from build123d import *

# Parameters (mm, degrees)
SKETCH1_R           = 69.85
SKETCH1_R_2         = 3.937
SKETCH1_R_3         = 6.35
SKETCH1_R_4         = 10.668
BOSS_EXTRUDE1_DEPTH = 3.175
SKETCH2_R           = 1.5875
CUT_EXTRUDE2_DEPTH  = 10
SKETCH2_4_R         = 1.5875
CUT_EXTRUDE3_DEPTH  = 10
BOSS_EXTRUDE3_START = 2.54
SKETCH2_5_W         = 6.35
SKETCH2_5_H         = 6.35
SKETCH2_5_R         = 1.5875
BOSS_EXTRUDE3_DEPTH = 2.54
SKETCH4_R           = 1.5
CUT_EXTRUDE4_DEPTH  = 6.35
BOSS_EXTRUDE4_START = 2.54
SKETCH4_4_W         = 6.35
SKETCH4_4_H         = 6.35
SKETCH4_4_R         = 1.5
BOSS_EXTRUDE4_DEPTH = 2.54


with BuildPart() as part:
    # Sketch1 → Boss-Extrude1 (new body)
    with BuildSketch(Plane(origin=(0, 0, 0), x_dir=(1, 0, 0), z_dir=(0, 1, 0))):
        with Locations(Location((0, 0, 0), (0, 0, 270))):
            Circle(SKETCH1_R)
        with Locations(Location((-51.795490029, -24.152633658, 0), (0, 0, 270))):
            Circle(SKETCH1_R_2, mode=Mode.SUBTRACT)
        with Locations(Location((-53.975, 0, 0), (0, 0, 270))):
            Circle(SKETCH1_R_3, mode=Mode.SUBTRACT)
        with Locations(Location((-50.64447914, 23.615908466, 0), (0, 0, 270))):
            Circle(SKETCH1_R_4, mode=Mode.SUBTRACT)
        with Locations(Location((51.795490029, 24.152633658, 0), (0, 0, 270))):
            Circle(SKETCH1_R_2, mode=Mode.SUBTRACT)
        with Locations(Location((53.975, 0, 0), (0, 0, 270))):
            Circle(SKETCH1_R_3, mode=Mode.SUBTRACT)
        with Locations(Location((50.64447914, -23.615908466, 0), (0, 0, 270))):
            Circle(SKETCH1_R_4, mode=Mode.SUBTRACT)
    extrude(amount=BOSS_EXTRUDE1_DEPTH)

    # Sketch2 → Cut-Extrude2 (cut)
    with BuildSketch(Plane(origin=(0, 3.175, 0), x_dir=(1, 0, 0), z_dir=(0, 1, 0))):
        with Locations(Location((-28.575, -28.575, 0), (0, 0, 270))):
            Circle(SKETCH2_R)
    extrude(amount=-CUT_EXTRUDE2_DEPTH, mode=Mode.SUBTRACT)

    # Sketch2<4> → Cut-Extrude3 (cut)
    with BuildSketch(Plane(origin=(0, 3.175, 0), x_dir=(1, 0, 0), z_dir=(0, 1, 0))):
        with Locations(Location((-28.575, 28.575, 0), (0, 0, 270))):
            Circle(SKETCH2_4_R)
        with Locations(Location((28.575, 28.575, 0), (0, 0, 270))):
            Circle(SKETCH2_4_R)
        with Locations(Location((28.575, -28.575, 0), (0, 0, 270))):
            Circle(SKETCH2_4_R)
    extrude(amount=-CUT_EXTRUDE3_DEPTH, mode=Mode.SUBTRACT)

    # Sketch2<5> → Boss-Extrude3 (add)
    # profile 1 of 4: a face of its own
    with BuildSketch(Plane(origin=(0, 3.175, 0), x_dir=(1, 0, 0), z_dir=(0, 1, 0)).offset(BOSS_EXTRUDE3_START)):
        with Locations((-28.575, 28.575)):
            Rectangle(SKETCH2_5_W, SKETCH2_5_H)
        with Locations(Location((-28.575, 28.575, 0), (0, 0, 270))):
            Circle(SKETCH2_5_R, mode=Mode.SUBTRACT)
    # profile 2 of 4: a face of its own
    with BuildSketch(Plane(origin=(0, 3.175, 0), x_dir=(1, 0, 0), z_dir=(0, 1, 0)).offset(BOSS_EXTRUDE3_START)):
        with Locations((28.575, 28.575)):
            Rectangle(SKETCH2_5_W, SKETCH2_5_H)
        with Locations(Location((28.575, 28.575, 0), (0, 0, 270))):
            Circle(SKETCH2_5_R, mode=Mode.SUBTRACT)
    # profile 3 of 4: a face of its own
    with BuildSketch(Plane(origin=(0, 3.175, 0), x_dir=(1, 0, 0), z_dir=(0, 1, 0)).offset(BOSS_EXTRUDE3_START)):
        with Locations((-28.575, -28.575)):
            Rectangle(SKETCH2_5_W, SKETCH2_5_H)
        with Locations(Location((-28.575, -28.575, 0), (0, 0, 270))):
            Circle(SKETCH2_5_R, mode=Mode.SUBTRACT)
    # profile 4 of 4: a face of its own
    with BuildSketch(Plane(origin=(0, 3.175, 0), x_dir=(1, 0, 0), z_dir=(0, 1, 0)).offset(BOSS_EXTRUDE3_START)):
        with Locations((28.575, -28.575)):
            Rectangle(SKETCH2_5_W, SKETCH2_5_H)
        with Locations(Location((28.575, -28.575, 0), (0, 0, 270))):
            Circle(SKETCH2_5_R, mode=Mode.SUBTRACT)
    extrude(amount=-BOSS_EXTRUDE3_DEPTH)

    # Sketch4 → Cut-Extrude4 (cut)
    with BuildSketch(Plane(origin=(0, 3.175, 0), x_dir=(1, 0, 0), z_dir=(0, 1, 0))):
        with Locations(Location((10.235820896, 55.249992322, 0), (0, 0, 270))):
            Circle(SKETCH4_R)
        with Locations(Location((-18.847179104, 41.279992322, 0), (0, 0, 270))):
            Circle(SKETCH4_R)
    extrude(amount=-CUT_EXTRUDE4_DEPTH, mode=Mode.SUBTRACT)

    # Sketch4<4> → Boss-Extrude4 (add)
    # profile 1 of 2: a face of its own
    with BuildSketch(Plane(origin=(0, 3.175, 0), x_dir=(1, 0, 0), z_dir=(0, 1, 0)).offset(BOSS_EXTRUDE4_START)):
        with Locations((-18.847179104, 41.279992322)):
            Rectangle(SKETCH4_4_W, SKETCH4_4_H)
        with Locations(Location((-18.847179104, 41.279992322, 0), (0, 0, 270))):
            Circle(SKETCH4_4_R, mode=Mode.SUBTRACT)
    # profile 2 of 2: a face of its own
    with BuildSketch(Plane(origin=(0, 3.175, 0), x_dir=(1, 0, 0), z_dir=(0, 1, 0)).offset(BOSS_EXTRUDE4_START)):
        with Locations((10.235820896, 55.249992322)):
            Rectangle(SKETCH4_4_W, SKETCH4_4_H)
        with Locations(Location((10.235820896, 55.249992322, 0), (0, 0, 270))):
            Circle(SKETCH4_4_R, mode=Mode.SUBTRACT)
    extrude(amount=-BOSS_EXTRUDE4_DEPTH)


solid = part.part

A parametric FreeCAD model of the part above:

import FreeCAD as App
import Part
import Sketcher
Q = App.Units.Quantity

doc = App.newDocument("Part")
body = doc.addObject("PartDesign::Body", "Body")

sketch1 = body.newObject("Sketcher::SketchObject", "Sketch")
sketch1.AttachmentSupport = (doc.getObject("XZ_Plane"), [""])
sketch1.MapMode = "FlatFace"
sketch1.addGeometry(Part.Circle(App.Vector(0, 0, 0), App.Vector(0, 0, 1), 69.8), False)
sketch1.addGeometry(Part.Circle(App.Vector(-50.6, -23.6, 0), App.Vector(0, 0, 1), 10.7), False)
sketch1.addGeometry(Part.Circle(App.Vector(-54, 0, 0), App.Vector(0, 0, 1), 6.3), False)
sketch1.addGeometry(Part.Circle(App.Vector(-51.8, 24.2, 0), App.Vector(0, 0, 1), 3.9), False)
sketch1.addGeometry(Part.Circle(App.Vector(51.8, -24.2, 0), App.Vector(0, 0, 1), 3.9), False)
sketch1.addGeometry(Part.Circle(App.Vector(54, 0, 0), App.Vector(0, 0, 1), 6.3), False)
sketch1.addGeometry(Part.Circle(App.Vector(50.6, 23.6, 0), App.Vector(0, 0, 1), 10.7), False)
sketch1.addConstraint(Sketcher.Constraint("Coincident", 0, 3, -1, 1))
sketch1.addConstraint(Sketcher.Constraint("Equal", 3, 4))
sketch1.addConstraint(Sketcher.Constraint("Equal", 2, 5))
sketch1.addConstraint(Sketcher.Constraint("Equal", 1, 6))
sketch1.addConstraint(Sketcher.Constraint("Symmetric", 3, 3, 4, 3, -1, 1))
sketch1.addConstraint(Sketcher.Constraint("Symmetric", 2, 3, 5, 3, -1, 1))
sketch1.addConstraint(Sketcher.Constraint("Symmetric", 1, 3, 6, 3, -1, 1))
sketch1.addConstraint(Sketcher.Constraint("PointOnObject", 2, 3, -1))
sketch1.addConstraint(Sketcher.Constraint("Diameter", 0, Q("5.5 in")))
sketch1.addConstraint(Sketcher.Constraint("Diameter", 2, Q("0.5 in")))
sketch1.addConstraint(Sketcher.Constraint("Diameter", 1, Q("0.84 in")))
sketch1.addConstraint(Sketcher.Constraint("Diameter", 3, Q("0.31 in")))
sketch1.addConstraint(Sketcher.Constraint("DistanceX", 2, 3, 5, 3, Q("4.25 in")))
sketch1.addConstraint(Sketcher.Constraint("DistanceX", 1, 3, -1, 1, 50.644479))
sketch1.addConstraint(Sketcher.Constraint("DistanceY", 1, 3, -1, 1, 23.615908))
sketch1.addConstraint(Sketcher.Constraint("DistanceX", 3, 3, -1, 1, 51.79549))
sketch1.addConstraint(Sketcher.Constraint("DistanceY", -1, 1, 3, 3, 24.152634))
pad1 = body.newObject("PartDesign::Pad", "Pad")
pad1.Profile = sketch1
pad1.Length = Q("0.125 in")
pad1.Reversed = True

sketch2 = body.newObject("Sketcher::SketchObject", "Sketch001")
sketch2.AttachmentSupport = (doc.getObject("XZ_Plane"), [""])
sketch2.MapMode = "FlatFace"
sketch2.AttachmentOffset = App.Placement(App.Vector(0, 0, -0.125 * 25.4), App.Rotation())
sketch2.addGeometry(Part.Circle(App.Vector(-28.6, 28.6, 0), App.Vector(0, 0, 1), 1.6), False)
sketch2.addConstraint(Sketcher.Constraint("Diameter", 0, Q("0.125 in")))
sketch2.addConstraint(Sketcher.Constraint("DistanceX", 0, 3, -1, 1, Q("1.125 in")))
sketch2.addConstraint(Sketcher.Constraint("DistanceY", -1, 1, 0, 3, Q("1.125 in")))
pocket1 = body.newObject("PartDesign::Pocket", "Pocket")
pocket1.Profile = sketch2
pocket1.Length = 10
pocket1.Reversed = True

sketch3 = body.newObject("Sketcher::SketchObject", "Sketch002")
sketch3.AttachmentSupport = (doc.getObject("XZ_Plane"), [""])
sketch3.MapMode = "FlatFace"
sketch3.AttachmentOffset = App.Placement(App.Vector(0, 0, -0.125 * 25.4), App.Rotation())
sketch3.addGeometry(Part.Circle(App.Vector(-28.6, -28.6, 0), App.Vector(0, 0, 1), 1.6), False)
sketch3.addGeometry(Part.Circle(App.Vector(28.6, -28.6, 0), App.Vector(0, 0, 1), 1.6), False)
sketch3.addGeometry(Part.Circle(App.Vector(28.6, 28.6, 0), App.Vector(0, 0, 1), 1.6), False)
sketch3.addConstraint(Sketcher.Constraint("Equal", 0, 1))
sketch3.addConstraint(Sketcher.Constraint("Equal", 1, 2))
sketch3.addConstraint(Sketcher.Constraint("Symmetric", 0, 3, 2, 3, -1, 1))
sketch3.addConstraint(Sketcher.Constraint("Symmetric", 0, 3, 1, 3, -2))
sketch3.addConstraint(Sketcher.Constraint("Diameter", 0, Q("0.125 in")))
sketch3.addConstraint(Sketcher.Constraint("DistanceX", 0, 3, 1, 3, Q("2.25 in")))
sketch3.addConstraint(Sketcher.Constraint("DistanceY", 1, 3, 2, 3, Q("2.25 in")))
pocket2 = body.newObject("PartDesign::Pocket", "Pocket001")
pocket2.Profile = sketch3
pocket2.Length = 10
pocket2.Reversed = True

sketch4 = body.newObject("Sketcher::SketchObject", "Sketch003")
sketch4.AttachmentSupport = (doc.getObject("XZ_Plane"), [""])
sketch4.MapMode = "FlatFace"
sketch4.AttachmentOffset = App.Placement(App.Vector(0, 0, -0.225 * 25.4), App.Rotation())
sketch4.addGeometry(Part.LineSegment(App.Vector(-31.8, -31.8, 0), App.Vector(-31.8, -25.4, 0)), False)
sketch4.addGeometry(Part.LineSegment(App.Vector(-31.8, -25.4, 0), App.Vector(-25.4, -25.4, 0)), False)
sketch4.addGeometry(Part.LineSegment(App.Vector(-25.4, -25.4, 0), App.Vector(-25.4, -31.8, 0)), False)
sketch4.addGeometry(Part.LineSegment(App.Vector(-25.4, -31.8, 0), App.Vector(-31.8, -31.8, 0)), False)
sketch4.addGeometry(Part.Circle(App.Vector(-28.6, -28.6, 0), App.Vector(0, 0, 1), 1.6), False)
sketch4.addGeometry(Part.LineSegment(App.Vector(25.4, -31.8, 0), App.Vector(25.4, -25.4, 0)), False)
sketch4.addGeometry(Part.LineSegment(App.Vector(25.4, -25.4, 0), App.Vector(31.8, -25.4, 0)), False)
sketch4.addGeometry(Part.LineSegment(App.Vector(31.8, -25.4, 0), App.Vector(31.8, -31.8, 0)), False)
sketch4.addGeometry(Part.LineSegment(App.Vector(31.8, -31.8, 0), App.Vector(25.4, -31.8, 0)), False)
sketch4.addGeometry(Part.Circle(App.Vector(28.6, -28.6, 0), App.Vector(0, 0, 1), 1.6), False)
sketch4.addGeometry(Part.LineSegment(App.Vector(-31.8, 25.4, 0), App.Vector(-31.8, 31.8, 0)), False)
sketch4.addGeometry(Part.LineSegment(App.Vector(-31.8, 31.8, 0), App.Vector(-25.4, 31.8, 0)), False)
sketch4.addGeometry(Part.LineSegment(App.Vector(-25.4, 31.8, 0), App.Vector(-25.4, 25.4, 0)), False)
sketch4.addGeometry(Part.LineSegment(App.Vector(-25.4, 25.4, 0), App.Vector(-31.8, 25.4, 0)), False)
sketch4.addGeometry(Part.Circle(App.Vector(-28.6, 28.6, 0), App.Vector(0, 0, 1), 1.6), False)
sketch4.addGeometry(Part.LineSegment(App.Vector(25.4, 25.4, 0), App.Vector(25.4, 31.8, 0)), False)
sketch4.addGeometry(Part.LineSegment(App.Vector(25.4, 31.8, 0), App.Vector(31.8, 31.8, 0)), False)
sketch4.addGeometry(Part.LineSegment(App.Vector(31.8, 31.8, 0), App.Vector(31.8, 25.4, 0)), False)
sketch4.addGeometry(Part.LineSegment(App.Vector(31.8, 25.4, 0), App.Vector(25.4, 25.4, 0)), False)
sketch4.addGeometry(Part.Circle(App.Vector(28.6, 28.6, 0), App.Vector(0, 0, 1), 1.6), False)
sketch4.addConstraint(Sketcher.Constraint("Coincident", 0, 2, 1, 1))
sketch4.addConstraint(Sketcher.Constraint("Coincident", 1, 2, 2, 1))
sketch4.addConstraint(Sketcher.Constraint("Coincident", 2, 2, 3, 1))
sketch4.addConstraint(Sketcher.Constraint("Coincident", 3, 2, 0, 1))
sketch4.addConstraint(Sketcher.Constraint("Coincident", 5, 2, 6, 1))
sketch4.addConstraint(Sketcher.Constraint("Coincident", 6, 2, 7, 1))
sketch4.addConstraint(Sketcher.Constraint("Coincident", 7, 2, 8, 1))
sketch4.addConstraint(Sketcher.Constraint("Coincident", 8, 2, 5, 1))
sketch4.addConstraint(Sketcher.Constraint("Coincident", 10, 2, 11, 1))
sketch4.addConstraint(Sketcher.Constraint("Coincident", 11, 2, 12, 1))
sketch4.addConstraint(Sketcher.Constraint("Coincident", 12, 2, 13, 1))
sketch4.addConstraint(Sketcher.Constraint("Coincident", 13, 2, 10, 1))
sketch4.addConstraint(Sketcher.Constraint("Coincident", 15, 2, 16, 1))
sketch4.addConstraint(Sketcher.Constraint("Coincident", 16, 2, 17, 1))
sketch4.addConstraint(Sketcher.Constraint("Coincident", 17, 2, 18, 1))
sketch4.addConstraint(Sketcher.Constraint("Coincident", 18, 2, 15, 1))
sketch4.addConstraint(Sketcher.Constraint("Vertical", 0))
sketch4.addConstraint(Sketcher.Constraint("Horizontal", 1))
sketch4.addConstraint(Sketcher.Constraint("Vertical", 2))
sketch4.addConstraint(Sketcher.Constraint("Horizontal", 3))
sketch4.addConstraint(Sketcher.Constraint("Vertical", 5))
sketch4.addConstraint(Sketcher.Constraint("Horizontal", 6))
sketch4.addConstraint(Sketcher.Constraint("Vertical", 7))
sketch4.addConstraint(Sketcher.Constraint("Horizontal", 8))
sketch4.addConstraint(Sketcher.Constraint("Vertical", 10))
sketch4.addConstraint(Sketcher.Constraint("Horizontal", 11))
sketch4.addConstraint(Sketcher.Constraint("Vertical", 12))
sketch4.addConstraint(Sketcher.Constraint("Horizontal", 13))
sketch4.addConstraint(Sketcher.Constraint("Vertical", 15))
sketch4.addConstraint(Sketcher.Constraint("Horizontal", 16))
sketch4.addConstraint(Sketcher.Constraint("Vertical", 17))
sketch4.addConstraint(Sketcher.Constraint("Horizontal", 18))
sketch4.addConstraint(Sketcher.Constraint("Equal", 4, 9))
sketch4.addConstraint(Sketcher.Constraint("Equal", 9, 14))
sketch4.addConstraint(Sketcher.Constraint("Equal", 14, 19))
sketch4.addConstraint(Sketcher.Constraint("Symmetric", 9, 3, 14, 3, -1, 1))
sketch4.addConstraint(Sketcher.Constraint("Symmetric", 4, 3, 19, 3, -1, 1))
sketch4.addConstraint(Sketcher.Constraint("Symmetric", 7, 2, 10, 2, -1, 1))
sketch4.addConstraint(Sketcher.Constraint("Symmetric", 5, 2, 12, 2, -1, 1))
sketch4.addConstraint(Sketcher.Constraint("Symmetric", 2, 2, 15, 2, -1, 1))
sketch4.addConstraint(Sketcher.Constraint("Symmetric", 0, 2, 17, 2, -1, 1))
sketch4.addConstraint(Sketcher.Constraint("Symmetric", 4, 3, 9, 3, -2))
sketch4.addConstraint(Sketcher.Constraint("Symmetric", 1, 2, 5, 2, -2))
sketch4.addConstraint(Sketcher.Constraint("Symmetric", 3, 2, 7, 2, -2))
sketch4.addConstraint(Sketcher.Constraint("Equal", 18, 0))
sketch4.addConstraint(Sketcher.Constraint("Diameter", 4, Q("0.125 in")))
sketch4.addConstraint(Sketcher.Constraint("DistanceY", 0, 2, -1, 1, Q("1 in")))
sketch4.addConstraint(Sketcher.Constraint("DistanceX", 1, 2, -1, 1, Q("1 in")))
sketch4.addConstraint(Sketcher.Constraint("DistanceX", 1, 1, 1, 2, Q("0.25 in")))
sketch4.addConstraint(Sketcher.Constraint("DistanceX", 4, 3, 9, 3, Q("2.25 in")))
sketch4.addConstraint(Sketcher.Constraint("DistanceY", 4, 3, 14, 3, Q("2.25 in")))
pad2 = body.newObject("PartDesign::Pad", "Pad001")
pad2.Profile = sketch4
pad2.Length = Q("0.1 in")

sketch5 = body.newObject("Sketcher::SketchObject", "Sketch004")
sketch5.AttachmentSupport = (doc.getObject("XZ_Plane"), [""])
sketch5.MapMode = "FlatFace"
sketch5.AttachmentOffset = App.Placement(App.Vector(0, 0, -0.125 * 25.4), App.Rotation())
sketch5.addGeometry(Part.Circle(App.Vector(10.2, -55.2, 0), App.Vector(0, 0, 1), 1.5), False)
sketch5.addGeometry(Part.Circle(App.Vector(-18.8, -41.3, 0), App.Vector(0, 0, 1), 1.5), False)
sketch5.addConstraint(Sketcher.Constraint("Equal", 0, 1))
sketch5.addConstraint(Sketcher.Constraint("Diameter", 0, 3.0))
sketch5.addConstraint(Sketcher.Constraint("DistanceY", 0, 3, 1, 3, Q("0.55 in")))
sketch5.addConstraint(Sketcher.Constraint("DistanceX", 1, 3, 0, 3, Q("1.145 in")))
sketch5.addConstraint(Sketcher.Constraint("DistanceX", -1, 1, 0, 3, 10.235821))
sketch5.addConstraint(Sketcher.Constraint("DistanceY", 0, 3, -1, 1, 55.249992))
pocket3 = body.newObject("PartDesign::Pocket", "Pocket002")
pocket3.Profile = sketch5
pocket3.Length = Q("0.25 in")
pocket3.Reversed = True

sketch6 = body.newObject("Sketcher::SketchObject", "Sketch005")
sketch6.AttachmentSupport = (doc.getObject("XZ_Plane"), [""])
sketch6.MapMode = "FlatFace"
sketch6.AttachmentOffset = App.Placement(App.Vector(0, 0, -0.225 * 25.4), App.Rotation())
sketch6.addGeometry(Part.LineSegment(App.Vector(-22, -44.5, 0), App.Vector(-22, -38.1, 0)), False)
sketch6.addGeometry(Part.LineSegment(App.Vector(-22, -38.1, 0), App.Vector(-15.7, -38.1, 0)), False)
sketch6.addGeometry(Part.LineSegment(App.Vector(-15.7, -38.1, 0), App.Vector(-15.7, -44.5, 0)), False)
sketch6.addGeometry(Part.LineSegment(App.Vector(-15.7, -44.5, 0), App.Vector(-22, -44.5, 0)), False)
sketch6.addGeometry(Part.Circle(App.Vector(-18.8, -41.3, 0), App.Vector(0, 0, 1), 1.5), False)
sketch6.addGeometry(Part.LineSegment(App.Vector(7.1, -58.4, 0), App.Vector(7.1, -52.1, 0)), False)
sketch6.addGeometry(Part.LineSegment(App.Vector(7.1, -52.1, 0), App.Vector(13.4, -52.1, 0)), False)
sketch6.addGeometry(Part.LineSegment(App.Vector(13.4, -52.1, 0), App.Vector(13.4, -58.4, 0)), False)
sketch6.addGeometry(Part.LineSegment(App.Vector(13.4, -58.4, 0), App.Vector(7.1, -58.4, 0)), False)
sketch6.addGeometry(Part.Circle(App.Vector(10.2, -55.2, 0), App.Vector(0, 0, 1), 1.5), False)
sketch6.addConstraint(Sketcher.Constraint("Coincident", 0, 2, 1, 1))
sketch6.addConstraint(Sketcher.Constraint("Coincident", 1, 2, 2, 1))
sketch6.addConstraint(Sketcher.Constraint("Coincident", 2, 2, 3, 1))
sketch6.addConstraint(Sketcher.Constraint("Coincident", 3, 2, 0, 1))
sketch6.addConstraint(Sketcher.Constraint("Coincident", 5, 2, 6, 1))
sketch6.addConstraint(Sketcher.Constraint("Coincident", 6, 2, 7, 1))
sketch6.addConstraint(Sketcher.Constraint("Coincident", 7, 2, 8, 1))
sketch6.addConstraint(Sketcher.Constraint("Coincident", 8, 2, 5, 1))
sketch6.addConstraint(Sketcher.Constraint("Vertical", 0))
sketch6.addConstraint(Sketcher.Constraint("Horizontal", 1))
sketch6.addConstraint(Sketcher.Constraint("Vertical", 2))
sketch6.addConstraint(Sketcher.Constraint("Horizontal", 3))
sketch6.addConstraint(Sketcher.Constraint("Vertical", 5))
sketch6.addConstraint(Sketcher.Constraint("Horizontal", 6))
sketch6.addConstraint(Sketcher.Constraint("Vertical", 7))
sketch6.addConstraint(Sketcher.Constraint("Horizontal", 8))
sketch6.addConstraint(Sketcher.Constraint("Equal", 4, 9))
sketch6.addConstraint(Sketcher.Constraint("Equal", 3, 6))
sketch6.addConstraint(Sketcher.Constraint("Equal", 8, 0))
sketch6.addConstraint(Sketcher.Constraint("Equal", 2, 5))
sketch6.addConstraint(Sketcher.Constraint("DistanceX", 1, 1, 1, 2, Q("0.25 in")))
sketch6.addConstraint(Sketcher.Constraint("DistanceY", 5, 2, 2, 2, Q("0.3 in")))
sketch6.addConstraint(Sketcher.Constraint("Diameter", 4, 3.0))
sketch6.addConstraint(Sketcher.Constraint("DistanceY", 9, 3, 4, 3, Q("0.55 in")))
sketch6.addConstraint(Sketcher.Constraint("DistanceX", 0, 2, 9, 3, Q("1.27 in")))
sketch6.addConstraint(Sketcher.Constraint("DistanceX", 4, 3, 5, 2, Q("1.02 in")))
sketch6.addConstraint(Sketcher.Constraint("DistanceX", 4, 3, 9, 3, Q("1.145 in")))
sketch6.addConstraint(Sketcher.Constraint("DistanceY", 4, 3, 0, 2, Q("0.125 in")))
sketch6.addConstraint(Sketcher.Constraint("DistanceX", 4, 3, -1, 1, 18.847179))
sketch6.addConstraint(Sketcher.Constraint("DistanceY", 4, 3, -1, 1, 41.279992))
pad3 = body.newObject("PartDesign::Pad", "Pad002")
pad3.Profile = sketch6
pad3.Length = Q("0.1 in")

doc.recompute()
